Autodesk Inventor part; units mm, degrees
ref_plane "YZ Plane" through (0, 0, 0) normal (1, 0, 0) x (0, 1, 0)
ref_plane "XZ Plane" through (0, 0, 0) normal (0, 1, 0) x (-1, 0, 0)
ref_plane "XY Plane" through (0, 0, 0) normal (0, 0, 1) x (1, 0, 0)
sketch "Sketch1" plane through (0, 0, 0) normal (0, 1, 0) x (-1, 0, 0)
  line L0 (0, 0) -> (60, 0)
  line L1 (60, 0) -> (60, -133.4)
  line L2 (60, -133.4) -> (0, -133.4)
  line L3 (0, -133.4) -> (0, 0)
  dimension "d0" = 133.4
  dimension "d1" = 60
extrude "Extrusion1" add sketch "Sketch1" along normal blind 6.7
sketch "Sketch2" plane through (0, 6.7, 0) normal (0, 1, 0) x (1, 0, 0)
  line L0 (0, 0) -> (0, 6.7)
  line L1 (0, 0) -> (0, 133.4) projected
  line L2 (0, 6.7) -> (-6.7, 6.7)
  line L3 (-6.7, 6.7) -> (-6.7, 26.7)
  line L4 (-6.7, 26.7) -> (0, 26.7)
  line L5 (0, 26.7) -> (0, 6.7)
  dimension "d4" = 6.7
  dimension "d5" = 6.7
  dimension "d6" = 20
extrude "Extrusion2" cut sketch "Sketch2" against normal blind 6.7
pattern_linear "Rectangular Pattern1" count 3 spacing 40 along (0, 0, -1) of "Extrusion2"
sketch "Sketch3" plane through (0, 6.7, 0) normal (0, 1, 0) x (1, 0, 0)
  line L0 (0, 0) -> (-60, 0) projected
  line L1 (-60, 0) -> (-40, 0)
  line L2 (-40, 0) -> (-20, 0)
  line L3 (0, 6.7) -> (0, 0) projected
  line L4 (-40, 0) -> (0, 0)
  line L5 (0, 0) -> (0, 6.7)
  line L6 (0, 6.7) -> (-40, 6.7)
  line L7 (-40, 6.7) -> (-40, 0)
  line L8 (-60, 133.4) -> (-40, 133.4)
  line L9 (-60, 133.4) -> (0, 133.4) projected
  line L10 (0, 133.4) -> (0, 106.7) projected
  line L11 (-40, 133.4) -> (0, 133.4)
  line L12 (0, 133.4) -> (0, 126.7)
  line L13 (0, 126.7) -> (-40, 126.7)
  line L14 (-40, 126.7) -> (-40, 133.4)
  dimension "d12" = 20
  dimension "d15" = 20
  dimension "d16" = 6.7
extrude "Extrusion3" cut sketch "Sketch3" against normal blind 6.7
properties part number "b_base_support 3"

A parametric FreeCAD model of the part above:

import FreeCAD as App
import Part
import Sketcher
Q = App.Units.Quantity


def add_polygon(sketch, points):
    """Adds a closed chain of lines whose ends are joined by coincident constraints."""
    first, n = sketch.GeometryCount, len(points)
    for a, b in zip(points, points[1:] + points[:1]):
        sketch.addGeometry(Part.LineSegment(App.Vector(*a, 0), App.Vector(*b, 0)), False)
    for i in range(n):
        sketch.addConstraint(Sketcher.Constraint("Coincident", first + i, 2, first + (i + 1) % n, 1))

doc = App.newDocument("Part")
body = doc.addObject("PartDesign::Body", "Body")

sketch1 = doc.addObject("Sketcher::SketchObject", "Sketch")
body.addObject(sketch1)
sketch1.AttachmentSupport = (doc.XZ_Plane, [""])
sketch1.MapMode = "FlatFace"
add_polygon(sketch1, [(-60, 0), (0, 0), (0, -133.4), (-60, -133.4)])
sketch1.addConstraint([
    Sketcher.Constraint("Horizontal", 0),
    Sketcher.Constraint("Vertical", 1),
    Sketcher.Constraint("Horizontal", 2),
    Sketcher.Constraint("Vertical", 3),
    Sketcher.Constraint("Coincident", 0, 2, -1, 1),
    Sketcher.Constraint("DistanceX", 0, 1, 0, 2, Q("60 mm")),
    Sketcher.Constraint("DistanceY", 1, 2, 1, 1, Q("133.4 mm")),
])
pad1 = doc.addObject("PartDesign::Pad", "Pad")
body.addObject(pad1)
pad1.Profile = sketch1
pad1.Length = 6.7
pad1.Reversed = True

sketch2 = doc.addObject("Sketcher::SketchObject", "Sketch001")
body.addObject(sketch2)
sketch2.AttachmentSupport = (doc.XZ_Plane, [""])
sketch2.MapMode = "FlatFace"
sketch2.AttachmentOffset = App.Placement(App.Vector(0, 0, -6.7), App.Rotation())
add_polygon(sketch2, [(-6.7, -6.7), (0, -6.7), (0, -26.7), (-6.7, -26.7)])
sketch2.addConstraint([
    Sketcher.Constraint("Horizontal", 0),
    Sketcher.Constraint("Vertical", 1),
    Sketcher.Constraint("Horizontal", 2),
    Sketcher.Constraint("Vertical", 3),
    Sketcher.Constraint("PointOnObject", 0, 2, -2),
    Sketcher.Constraint("DistanceY", 1, 2, 1, 1, Q("20 mm")),
    Sketcher.Constraint("DistanceX", 0, 1, 0, 2, Q("6.7 mm")),
    Sketcher.Constraint("DistanceY", 0, 2, -1, 1, Q("6.7 mm")),
])
pocket1 = doc.addObject("PartDesign::Pocket", "Pocket")
body.addObject(pocket1)
pocket1.Profile = sketch2
pocket1.Length = 6.7
pocket1.Reversed = True
doc.recompute()

linearpattern = doc.addObject("PartDesign::LinearPattern", "LinearPattern")
body.addObject(linearpattern)
linearpattern.Originals = [pocket1]
linearpattern.Direction = (doc.Z_Axis, [""])
linearpattern.Mode = "offset"
linearpattern.Offset = 40
linearpattern.Occurrences = 3
linearpattern.Reversed = True
body.Tip = linearpattern

sketch3 = doc.addObject("Sketcher::SketchObject", "Sketch002")
body.addObject(sketch3)
sketch3.AttachmentSupport = (doc.XZ_Plane, [""])
sketch3.MapMode = "FlatFace"
sketch3.AttachmentOffset = App.Placement(App.Vector(0, 0, -6.7), App.Rotation())
add_polygon(sketch3, [(-40, 0), (0, 0), (0, -6.7), (-40, -6.7)])
add_polygon(sketch3, [(0, -133.4), (-40, -133.4), (-40, -126.7), (0, -126.7)])
sketch3.addConstraint([
    Sketcher.Constraint("Horizontal", 0),
    Sketcher.Constraint("Vertical", 1),
    Sketcher.Constraint("Horizontal", 2),
    Sketcher.Constraint("Vertical", 3),
    Sketcher.Constraint("Horizontal", 4),
    Sketcher.Constraint("Vertical", 5),
    Sketcher.Constraint("Horizontal", 6),
    Sketcher.Constraint("Vertical", 7),
    Sketcher.Constraint("Coincident", 0, 2, -1, 1),
    Sketcher.Constraint("PointOnObject", 6, 2, -2),
    Sketcher.Constraint("Vertical", 3, 2, 4, 2),
    Sketcher.Constraint("Equal", 3, 5),
    Sketcher.Constraint("DistanceY", 1, 2, 1, 1, Q("6.7 mm")),
    Sketcher.Constraint("DistanceX", 0, 1, 0, 2, Q("40 mm")),
    Sketcher.Constraint("DistanceY", 5, 2, 2, 2, Q("120 mm")),
])
pocket2 = doc.addObject("PartDesign::Pocket", "Pocket001")
body.addObject(pocket2)
pocket2.Profile = sketch3
pocket2.Length = 6.7
pocket2.Reversed = True

doc.recompute()
